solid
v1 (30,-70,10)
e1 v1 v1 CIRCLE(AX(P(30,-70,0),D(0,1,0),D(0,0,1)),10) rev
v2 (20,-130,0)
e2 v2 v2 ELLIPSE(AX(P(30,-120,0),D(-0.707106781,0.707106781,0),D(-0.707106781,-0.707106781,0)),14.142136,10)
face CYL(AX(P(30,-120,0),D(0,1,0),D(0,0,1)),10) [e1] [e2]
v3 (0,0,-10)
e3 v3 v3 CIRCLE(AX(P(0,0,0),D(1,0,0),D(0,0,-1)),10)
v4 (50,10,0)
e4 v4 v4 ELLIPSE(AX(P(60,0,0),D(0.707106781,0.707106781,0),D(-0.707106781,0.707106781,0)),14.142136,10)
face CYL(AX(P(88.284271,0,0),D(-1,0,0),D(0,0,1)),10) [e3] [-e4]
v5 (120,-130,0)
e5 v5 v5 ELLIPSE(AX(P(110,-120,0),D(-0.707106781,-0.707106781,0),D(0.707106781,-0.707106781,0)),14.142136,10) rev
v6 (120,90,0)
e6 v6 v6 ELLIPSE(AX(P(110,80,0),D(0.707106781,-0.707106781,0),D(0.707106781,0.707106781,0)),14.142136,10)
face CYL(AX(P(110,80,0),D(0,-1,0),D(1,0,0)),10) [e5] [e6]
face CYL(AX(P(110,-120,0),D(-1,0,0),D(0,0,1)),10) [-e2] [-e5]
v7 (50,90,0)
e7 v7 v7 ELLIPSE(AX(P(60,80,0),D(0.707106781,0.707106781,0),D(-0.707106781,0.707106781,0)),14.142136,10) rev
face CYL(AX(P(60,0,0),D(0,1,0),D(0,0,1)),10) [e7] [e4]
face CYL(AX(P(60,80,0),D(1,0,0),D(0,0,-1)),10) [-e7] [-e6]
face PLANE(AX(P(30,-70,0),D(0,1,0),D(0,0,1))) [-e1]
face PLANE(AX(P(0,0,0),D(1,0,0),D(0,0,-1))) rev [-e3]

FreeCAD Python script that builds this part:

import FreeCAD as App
import Part
import Sketcher

V = App.Vector

doc = App.newDocument("Part")
body = doc.addObject("PartDesign::Body", "Body")

sketch1 = body.newObject("Sketcher::SketchObject", "Sketch")
sketch1.AttachmentSupport = (doc.getObject("YZ_Plane"), [""])
sketch1.MapMode = "FlatFace"
sketch1.addGeometry(Part.Circle(V(0, 0, 0), V(0, 0, 1), 10), False)
sketch1.addConstraint([
    Sketcher.Constraint("Coincident", 0, 3, -1, 1),
    Sketcher.Constraint("Diameter", 0, 20.0),
])

sketch2 = body.newObject("Sketcher::SketchObject", "Sketch001")
sketch2.AttachmentSupport = (doc.getObject("XY_Plane"), [""])
sketch2.MapMode = "FlatFace"
sketch2.addGeometry([
    Part.LineSegment(V(0, 0, 0), V(60, 0, 0)),
    Part.LineSegment(V(60, 0, 0), V(60, 80, 0)),
    Part.LineSegment(V(60, 80, 0), V(110, 80, 0)),
    Part.LineSegment(V(110, 80, 0), V(110, -120, 0)),
    Part.LineSegment(V(110, -120, 0), V(30, -120, 0)),
    Part.LineSegment(V(30, -120, 0), V(30, -70, 0)),
], False)
sketch2.addConstraint([
    Sketcher.Constraint("Coincident", 0, 2, 1, 1),
    Sketcher.Constraint("Coincident", 1, 2, 2, 1),
    Sketcher.Constraint("Coincident", 2, 2, 3, 1),
    Sketcher.Constraint("Coincident", 3, 2, 4, 1),
    Sketcher.Constraint("Coincident", 4, 2, 5, 1),
    Sketcher.Constraint("Horizontal", 0),
    Sketcher.Constraint("Vertical", 1),
    Sketcher.Constraint("Horizontal", 2),
    Sketcher.Constraint("Vertical", 3),
    Sketcher.Constraint("Horizontal", 4),
    Sketcher.Constraint("Vertical", 5),
    Sketcher.Constraint("Coincident", 0, 1, -1, 1),
    Sketcher.Constraint("Equal", 4, 1),
    Sketcher.Constraint("Equal", 2, 5),
    Sketcher.Constraint("DistanceX", 0, 1, 0, 2, 60.0),
    Sketcher.Constraint("DistanceX", 2, 1, 2, 2, 50.0),
    Sketcher.Constraint("DistanceX", 4, 2, 4, 1, 80.0),
    Sketcher.Constraint("DistanceY", 3, 2, 3, 1, 200.0),
])
doc.recompute()

additivepipe = body.newObject("PartDesign::AdditivePipe", "AdditivePipe")
additivepipe.Profile = sketch1
additivepipe.Spine = (sketch2, ["Edge1", "Edge2", "Edge3", "Edge4", "Edge5", "Edge6"])
additivepipe.Transition = "Right corner"

doc.recompute()
